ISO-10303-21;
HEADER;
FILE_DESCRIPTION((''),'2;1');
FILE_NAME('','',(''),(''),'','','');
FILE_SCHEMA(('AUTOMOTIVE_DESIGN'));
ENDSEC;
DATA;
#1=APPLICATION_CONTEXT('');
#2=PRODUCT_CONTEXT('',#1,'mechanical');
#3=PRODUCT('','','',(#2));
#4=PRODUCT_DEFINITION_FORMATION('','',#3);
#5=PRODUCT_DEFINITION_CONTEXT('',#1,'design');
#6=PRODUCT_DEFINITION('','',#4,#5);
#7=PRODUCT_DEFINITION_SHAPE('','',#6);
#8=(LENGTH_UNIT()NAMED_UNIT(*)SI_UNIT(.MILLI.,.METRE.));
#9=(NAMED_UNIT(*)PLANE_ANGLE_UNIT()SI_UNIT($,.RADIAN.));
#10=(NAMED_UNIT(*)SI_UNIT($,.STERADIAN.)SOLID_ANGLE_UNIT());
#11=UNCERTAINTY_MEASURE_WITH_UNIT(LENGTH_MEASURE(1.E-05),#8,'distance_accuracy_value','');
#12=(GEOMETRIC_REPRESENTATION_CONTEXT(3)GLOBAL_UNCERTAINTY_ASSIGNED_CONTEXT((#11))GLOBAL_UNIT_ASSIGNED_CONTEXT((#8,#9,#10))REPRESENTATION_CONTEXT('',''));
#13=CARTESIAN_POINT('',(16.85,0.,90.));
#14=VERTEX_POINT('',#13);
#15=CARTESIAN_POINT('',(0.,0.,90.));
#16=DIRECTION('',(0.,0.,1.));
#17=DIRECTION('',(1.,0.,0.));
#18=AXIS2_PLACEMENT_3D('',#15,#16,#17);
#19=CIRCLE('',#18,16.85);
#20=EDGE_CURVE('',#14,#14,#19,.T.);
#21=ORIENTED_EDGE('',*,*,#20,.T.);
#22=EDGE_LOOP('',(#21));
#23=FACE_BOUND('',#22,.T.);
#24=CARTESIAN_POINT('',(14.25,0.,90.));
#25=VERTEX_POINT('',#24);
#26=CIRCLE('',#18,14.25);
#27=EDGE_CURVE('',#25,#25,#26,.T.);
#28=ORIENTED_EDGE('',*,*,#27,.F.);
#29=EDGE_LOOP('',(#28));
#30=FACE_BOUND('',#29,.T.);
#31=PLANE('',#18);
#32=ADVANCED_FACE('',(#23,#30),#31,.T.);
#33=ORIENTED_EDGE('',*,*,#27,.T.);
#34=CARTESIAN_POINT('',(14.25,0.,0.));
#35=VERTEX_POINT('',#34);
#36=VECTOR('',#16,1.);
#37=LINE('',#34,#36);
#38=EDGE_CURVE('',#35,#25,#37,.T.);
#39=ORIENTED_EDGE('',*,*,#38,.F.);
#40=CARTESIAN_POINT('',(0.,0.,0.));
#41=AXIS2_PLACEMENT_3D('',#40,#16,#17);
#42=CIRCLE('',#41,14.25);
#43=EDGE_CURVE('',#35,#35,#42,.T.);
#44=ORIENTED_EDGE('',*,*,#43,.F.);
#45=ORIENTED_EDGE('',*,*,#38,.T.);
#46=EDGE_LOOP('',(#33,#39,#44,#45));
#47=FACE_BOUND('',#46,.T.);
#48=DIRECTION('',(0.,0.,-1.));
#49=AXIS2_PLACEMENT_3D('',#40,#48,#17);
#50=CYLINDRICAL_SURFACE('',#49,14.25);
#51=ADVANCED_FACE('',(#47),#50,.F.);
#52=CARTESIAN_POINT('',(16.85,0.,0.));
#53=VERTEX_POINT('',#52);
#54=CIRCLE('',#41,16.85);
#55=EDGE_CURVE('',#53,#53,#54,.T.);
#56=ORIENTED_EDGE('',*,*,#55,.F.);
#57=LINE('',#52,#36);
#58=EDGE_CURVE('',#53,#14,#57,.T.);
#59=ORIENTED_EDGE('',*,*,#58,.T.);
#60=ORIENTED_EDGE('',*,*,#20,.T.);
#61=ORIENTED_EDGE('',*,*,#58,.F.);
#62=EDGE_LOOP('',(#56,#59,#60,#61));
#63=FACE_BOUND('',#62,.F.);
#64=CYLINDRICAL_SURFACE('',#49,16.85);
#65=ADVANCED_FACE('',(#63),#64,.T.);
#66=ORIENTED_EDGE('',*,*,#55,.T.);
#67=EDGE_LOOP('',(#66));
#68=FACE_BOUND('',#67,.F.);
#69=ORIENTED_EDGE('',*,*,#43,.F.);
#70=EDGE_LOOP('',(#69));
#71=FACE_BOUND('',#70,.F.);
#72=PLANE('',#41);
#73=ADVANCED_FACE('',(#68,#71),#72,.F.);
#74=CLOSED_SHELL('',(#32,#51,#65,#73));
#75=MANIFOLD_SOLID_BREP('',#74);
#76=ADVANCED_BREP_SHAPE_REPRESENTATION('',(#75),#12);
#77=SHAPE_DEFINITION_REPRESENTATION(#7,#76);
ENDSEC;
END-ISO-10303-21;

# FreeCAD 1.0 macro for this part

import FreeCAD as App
import Part
import Sketcher

V = App.Vector

doc = App.newDocument("Part")
body = doc.addObject("PartDesign::Body", "Body")

sketch1 = body.newObject("Sketcher::SketchObject", "Sketch")
sketch1.AttachmentSupport = (doc.getObject("XY_Plane"), [""])
sketch1.MapMode = "FlatFace"
sketch1.addGeometry(Part.Circle(V(0, 0, 0), V(0, 0, 1), 16.85), False)
sketch1.addGeometry(Part.Circle(V(0, 0, 0), V(0, 0, 1), 14.25), False)
sketch1.addConstraint(Sketcher.Constraint("Coincident", 0, 3, -1, 1))
sketch1.addConstraint(Sketcher.Constraint("Coincident", 1, 3, -1, 1))
sketch1.addConstraint(Sketcher.Constraint("Diameter", 0, 33.7))
sketch1.addConstraint(Sketcher.Constraint("Diameter", 1, 28.5))
pad1 = body.newObject("PartDesign::Pad", "Pad")
pad1.Profile = sketch1
pad1.Length = 90

doc.recompute()
